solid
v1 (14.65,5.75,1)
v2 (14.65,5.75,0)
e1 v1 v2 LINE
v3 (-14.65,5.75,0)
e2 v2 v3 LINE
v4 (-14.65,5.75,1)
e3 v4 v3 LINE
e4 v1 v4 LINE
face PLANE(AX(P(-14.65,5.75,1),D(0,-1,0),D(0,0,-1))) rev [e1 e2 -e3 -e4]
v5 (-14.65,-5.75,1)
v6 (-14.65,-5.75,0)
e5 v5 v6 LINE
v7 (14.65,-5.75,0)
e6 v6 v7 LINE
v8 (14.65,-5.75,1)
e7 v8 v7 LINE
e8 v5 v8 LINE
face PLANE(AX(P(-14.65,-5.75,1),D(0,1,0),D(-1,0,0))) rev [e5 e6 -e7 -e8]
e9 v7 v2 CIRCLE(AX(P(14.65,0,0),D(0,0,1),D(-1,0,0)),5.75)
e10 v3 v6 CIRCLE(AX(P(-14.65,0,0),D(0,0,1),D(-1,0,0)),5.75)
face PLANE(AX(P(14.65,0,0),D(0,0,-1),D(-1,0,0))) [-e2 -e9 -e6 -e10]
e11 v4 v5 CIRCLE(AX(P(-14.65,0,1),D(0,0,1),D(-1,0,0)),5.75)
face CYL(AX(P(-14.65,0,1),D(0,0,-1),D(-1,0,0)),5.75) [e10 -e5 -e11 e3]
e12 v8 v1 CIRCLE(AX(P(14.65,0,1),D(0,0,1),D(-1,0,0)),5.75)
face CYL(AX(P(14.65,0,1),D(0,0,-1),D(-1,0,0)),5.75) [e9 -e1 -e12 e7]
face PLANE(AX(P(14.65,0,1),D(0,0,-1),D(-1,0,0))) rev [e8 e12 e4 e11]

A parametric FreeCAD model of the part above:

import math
import FreeCAD as App
import Part
import Sketcher

V = App.Vector
Q = App.Units.Quantity

doc = App.newDocument("Part")
body = doc.addObject("PartDesign::Body", "Body")

sketch1 = body.newObject("Sketcher::SketchObject", "Sketch")
sketch1.AttachmentSupport = (doc.getObject("XY_Plane"), [""])
sketch1.MapMode = "FlatFace"
sketch1.addGeometry(Part.LineSegment(V(-15, -6, 0), V(15, -6, 0)), False)
sketch1.addGeometry(Part.ArcOfCircle(Part.Circle(V(15, 0, 0), V(0, 0, 1), 6), math.radians(-90), math.radians(90)), False)
sketch1.addGeometry(Part.LineSegment(V(15, 6, 0), V(-15, 6, 0)), False)
sketch1.addGeometry(Part.ArcOfCircle(Part.Circle(V(-15, 0, 0), V(0, 0, 1), 6), math.radians(90), math.radians(270)), False)
sketch1.addConstraint(Sketcher.Constraint("Tangent", 0, 2, 1, 1))
sketch1.addConstraint(Sketcher.Constraint("Tangent", 1, 2, 2, 1))
sketch1.addConstraint(Sketcher.Constraint("Tangent", 2, 2, 3, 1))
sketch1.addConstraint(Sketcher.Constraint("Tangent", 3, 2, 0, 1))
sketch1.addConstraint(Sketcher.Constraint("Horizontal", 0))
sketch1.addConstraint(Sketcher.Constraint("Horizontal", 2))
sketch1.addConstraint(Sketcher.Constraint("Symmetric", 1, 3, 3, 3, -1, 1))
sketch1.addConstraint(Sketcher.Constraint("Radius", 1, Q("5.75 mm")))
sketch1.addConstraint(Sketcher.Constraint("DistanceX", 0, 1, 0, 2, Q("29.3 mm")))
pad1 = body.newObject("PartDesign::Pad", "Pad")
pad1.Profile = sketch1
pad1.Length = 1

doc.recompute()
